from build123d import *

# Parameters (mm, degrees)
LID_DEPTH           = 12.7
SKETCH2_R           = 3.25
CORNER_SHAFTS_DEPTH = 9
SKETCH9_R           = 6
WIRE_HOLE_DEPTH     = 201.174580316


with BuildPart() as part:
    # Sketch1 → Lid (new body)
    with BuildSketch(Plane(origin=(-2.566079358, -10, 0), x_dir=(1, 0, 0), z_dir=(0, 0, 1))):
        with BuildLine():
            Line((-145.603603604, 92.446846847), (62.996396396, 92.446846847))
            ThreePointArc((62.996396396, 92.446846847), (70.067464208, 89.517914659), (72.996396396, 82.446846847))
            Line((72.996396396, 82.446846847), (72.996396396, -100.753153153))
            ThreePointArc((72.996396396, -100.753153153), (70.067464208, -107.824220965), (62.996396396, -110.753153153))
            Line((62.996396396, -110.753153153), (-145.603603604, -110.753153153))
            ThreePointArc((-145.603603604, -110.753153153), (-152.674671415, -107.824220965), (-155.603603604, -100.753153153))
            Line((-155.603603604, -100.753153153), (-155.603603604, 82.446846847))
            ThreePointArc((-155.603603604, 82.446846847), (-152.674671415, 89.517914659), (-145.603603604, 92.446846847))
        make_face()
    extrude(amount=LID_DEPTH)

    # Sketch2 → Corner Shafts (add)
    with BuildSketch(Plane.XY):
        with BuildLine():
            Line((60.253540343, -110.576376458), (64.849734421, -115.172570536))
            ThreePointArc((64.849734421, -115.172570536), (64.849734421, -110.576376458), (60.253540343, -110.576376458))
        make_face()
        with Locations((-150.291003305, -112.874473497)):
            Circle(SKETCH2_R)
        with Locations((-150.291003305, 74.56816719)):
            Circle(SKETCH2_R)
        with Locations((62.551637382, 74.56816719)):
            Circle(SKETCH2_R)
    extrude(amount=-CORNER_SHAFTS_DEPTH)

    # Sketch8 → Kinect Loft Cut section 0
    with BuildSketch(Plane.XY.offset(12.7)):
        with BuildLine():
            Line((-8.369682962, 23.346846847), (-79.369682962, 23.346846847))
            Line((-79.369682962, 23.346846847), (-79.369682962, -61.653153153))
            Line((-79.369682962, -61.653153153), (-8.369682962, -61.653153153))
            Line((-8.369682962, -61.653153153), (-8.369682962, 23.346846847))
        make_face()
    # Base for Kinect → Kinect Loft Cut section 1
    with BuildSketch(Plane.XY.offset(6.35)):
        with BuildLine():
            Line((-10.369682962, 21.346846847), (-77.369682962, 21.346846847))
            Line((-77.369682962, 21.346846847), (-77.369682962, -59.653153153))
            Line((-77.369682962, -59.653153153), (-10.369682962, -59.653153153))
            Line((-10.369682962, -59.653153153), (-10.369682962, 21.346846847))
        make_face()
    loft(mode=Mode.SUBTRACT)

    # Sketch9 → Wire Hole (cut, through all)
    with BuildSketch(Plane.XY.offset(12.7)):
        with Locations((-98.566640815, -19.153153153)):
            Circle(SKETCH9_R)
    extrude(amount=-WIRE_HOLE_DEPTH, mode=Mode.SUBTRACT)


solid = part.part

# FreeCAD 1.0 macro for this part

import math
import FreeCAD as App
import Part
import Sketcher

V = App.Vector
Q = App.Units.Quantity

doc = App.newDocument("Part")
body = doc.addObject("PartDesign::Body", "Body")

# Sketch on XY plane
sketch1 = body.newObject("Sketcher::SketchObject", "Sketch")
sketch1.AttachmentSupport = (doc.getObject("XY_Plane"), [""])
sketch1.MapMode = "FlatFace"
sketch1.addGeometry(Part.LineSegment(V(60, 82, 0), V(-148, 82, 0)), False)
sketch1.addGeometry(Part.ArcOfCircle(Part.Circle(V(-148, 72, 0), V(0, 0, 1), 10), math.radians(90), math.radians(180)), False)
sketch1.addGeometry(Part.LineSegment(V(-158, 72, 0), V(-158, -111, 0)), False)
sketch1.addGeometry(Part.ArcOfCircle(Part.Circle(V(-148, -111, 0), V(0, 0, 1), 10), math.radians(-180), math.radians(-90)), False)
sketch1.addGeometry(Part.LineSegment(V(-148, -121, 0), V(60, -121, 0)), False)
sketch1.addGeometry(Part.ArcOfCircle(Part.Circle(V(60, -111, 0), V(0, 0, 1), 10), math.radians(-90), math.radians(0)), False)
sketch1.addGeometry(Part.LineSegment(V(70, -111, 0), V(70, 72, 0)), False)
sketch1.addGeometry(Part.ArcOfCircle(Part.Circle(V(60, 72, 0), V(0, 0, 1), 10), math.radians(0), math.radians(90)), False)
sketch1.addConstraint(Sketcher.Constraint("Tangent", 0, 2, 1, 1))
sketch1.addConstraint(Sketcher.Constraint("Tangent", 1, 2, 2, 1))
sketch1.addConstraint(Sketcher.Constraint("Tangent", 2, 2, 3, 1))
sketch1.addConstraint(Sketcher.Constraint("Tangent", 3, 2, 4, 1))
sketch1.addConstraint(Sketcher.Constraint("Tangent", 4, 2, 5, 1))
sketch1.addConstraint(Sketcher.Constraint("Tangent", 5, 2, 6, 1))
sketch1.addConstraint(Sketcher.Constraint("Tangent", 6, 2, 7, 1))
sketch1.addConstraint(Sketcher.Constraint("Tangent", 7, 2, 0, 1))
sketch1.addConstraint(Sketcher.Constraint("Horizontal", 0))
sketch1.addConstraint(Sketcher.Constraint("Vertical", 2))
sketch1.addConstraint(Sketcher.Constraint("Horizontal", 4))
sketch1.addConstraint(Sketcher.Constraint("Vertical", 6))
sketch1.addConstraint(Sketcher.Constraint("Equal", 1, 3))
sketch1.addConstraint(Sketcher.Constraint("Equal", 3, 5))
sketch1.addConstraint(Sketcher.Constraint("Equal", 5, 7))
sketch1.addConstraint(Sketcher.Constraint("Radius", 1, Q("10 mm")))
sketch1.addConstraint(Sketcher.Constraint("DistanceX", 0, 2, 0, 1, Q("208.6 mm")))
sketch1.addConstraint(Sketcher.Constraint("DistanceY", 2, 2, 2, 1, Q("183.2 mm")))
sketch1.addConstraint(Sketcher.Constraint("DistanceX", 1, 3, -1, 1, Q("148.169683 mm")))
sketch1.addConstraint(Sketcher.Constraint("DistanceY", -1, 1, 1, 3, Q("72.446847 mm")))
pad1 = body.newObject("PartDesign::Pad", "Pad")
pad1.Profile = sketch1
pad1.Length = 12.7

# Sketch on XY plane
sketch2 = body.newObject("Sketcher::SketchObject", "Sketch001")
sketch2.AttachmentSupport = (doc.getObject("XY_Plane"), [""])
sketch2.MapMode = "FlatFace"
sketch2.addGeometry(Part.LineSegment(V(60.3, -110.6, 0), V(64.8, -115.2, 0)), False)
sketch2.addGeometry(Part.ArcOfCircle(Part.Circle(V(62.6, -112.9, 0), V(0, 0, 1), 3.2), math.radians(-45), math.radians(135)), False)
sketch2.addGeometry(Part.Circle(V(-150.3, -112.9, 0), V(0, 0, 1), 3.2), False)
sketch2.addGeometry(Part.Circle(V(-150.3, 74.6, 0), V(0, 0, 1), 3.2), False)
sketch2.addGeometry(Part.Circle(V(62.6, 74.6, 0), V(0, 0, 1), 3.2), False)
sketch2.addConstraint(Sketcher.Constraint("Coincident", 0, 1, 1, 2))
sketch2.addConstraint(Sketcher.Constraint("Coincident", 1, 1, 0, 2))
sketch2.addConstraint(Sketcher.Constraint("Equal", 1, 2))
sketch2.addConstraint(Sketcher.Constraint("Equal", 2, 3))
sketch2.addConstraint(Sketcher.Constraint("Equal", 3, 4))
sketch2.addConstraint(Sketcher.Constraint("Horizontal", 1, 3, 2, 3))
sketch2.addConstraint(Sketcher.Constraint("Horizontal", 3, 3, 4, 3))
sketch2.addConstraint(Sketcher.Constraint("Vertical", 2, 3, 3, 3))
sketch2.addConstraint(Sketcher.Constraint("Vertical", 1, 3, 4, 3))
sketch2.addConstraint(Sketcher.Constraint("Diameter", 2, Q("6.5 mm")))
sketch2.addConstraint(Sketcher.Constraint("Angle", 0, Q("-45 deg")))
sketch2.addConstraint(Sketcher.Constraint("DistanceX", -1, 1, 0, 1, Q("60.25354 mm")))
sketch2.addConstraint(Sketcher.Constraint("DistanceY", 1, 1, -1, 1, Q("115.172571 mm")))
sketch2.addConstraint(Sketcher.Constraint("DistanceX", 2, 3, 1, 3, Q("212.842641 mm")))
sketch2.addConstraint(Sketcher.Constraint("DistanceY", 2, 3, 3, 3, Q("187.442641 mm")))
sketch2.addConstraint(Sketcher.Constraint("DistanceX", -1, 1, 1, 3, Q("62.551637 mm")))
pad2 = body.newObject("PartDesign::Pad", "Pad001")
pad2.Profile = sketch2
pad2.Length = 9
pad2.Reversed = True

# Sketch on XY plane
sketch3 = body.newObject("Sketcher::SketchObject", "Sketch002")
sketch3.AttachmentSupport = (doc.getObject("XY_Plane"), [""])
sketch3.MapMode = "FlatFace"
sketch3.AttachmentOffset = App.Placement(V(0, 0, 12.7), App.Rotation())
sketch3.addGeometry(Part.LineSegment(V(-8, 23, 0), V(-79, 23, 0)), False)
sketch3.addGeometry(Part.LineSegment(V(-79, 23, 0), V(-79, -62, 0)), False)
sketch3.addGeometry(Part.LineSegment(V(-79, -62, 0), V(-8, -62, 0)), False)
sketch3.addGeometry(Part.LineSegment(V(-8, -62, 0), V(-8, 23, 0)), False)
sketch3.addConstraint(Sketcher.Constraint("Coincident", 0, 2, 1, 1))
sketch3.addConstraint(Sketcher.Constraint("Coincident", 1, 2, 2, 1))
sketch3.addConstraint(Sketcher.Constraint("Coincident", 2, 2, 3, 1))
sketch3.addConstraint(Sketcher.Constraint("Coincident", 3, 2, 0, 1))
sketch3.addConstraint(Sketcher.Constraint("Horizontal", 0))
sketch3.addConstraint(Sketcher.Constraint("Vertical", 1))
sketch3.addConstraint(Sketcher.Constraint("Horizontal", 2))
sketch3.addConstraint(Sketcher.Constraint("Vertical", 3))
sketch3.addConstraint(Sketcher.Constraint("DistanceX", 0, 2, 0, 1, Q("71 mm")))
sketch3.addConstraint(Sketcher.Constraint("DistanceY", 1, 2, 1, 1, Q("85 mm")))
sketch3.addConstraint(Sketcher.Constraint("DistanceX", 0, 2, -1, 1, Q("79.369683 mm")))
sketch3.addConstraint(Sketcher.Constraint("DistanceY", -1, 1, 0, 2, Q("23.346847 mm")))

# Sketch on XY plane
sketch4 = body.newObject("Sketcher::SketchObject", "Sketch003")
sketch4.AttachmentSupport = (doc.getObject("XY_Plane"), [""])
sketch4.MapMode = "FlatFace"
sketch4.AttachmentOffset = App.Placement(V(0, 0, 6.35), App.Rotation())
sketch4.addGeometry(Part.LineSegment(V(-10, 21, 0), V(-77, 21, 0)), False)
sketch4.addGeometry(Part.LineSegment(V(-77, 21, 0), V(-77, -60, 0)), False)
sketch4.addGeometry(Part.LineSegment(V(-77, -60, 0), V(-10, -60, 0)), False)
sketch4.addGeometry(Part.LineSegment(V(-10, -60, 0), V(-10, 21, 0)), False)
sketch4.addConstraint(Sketcher.Constraint("Coincident", 0, 2, 1, 1))
sketch4.addConstraint(Sketcher.Constraint("Coincident", 1, 2, 2, 1))
sketch4.addConstraint(Sketcher.Constraint("Coincident", 2, 2, 3, 1))
sketch4.addConstraint(Sketcher.Constraint("Coincident", 3, 2, 0, 1))
sketch4.addConstraint(Sketcher.Constraint("Horizontal", 0))
sketch4.addConstraint(Sketcher.Constraint("Vertical", 1))
sketch4.addConstraint(Sketcher.Constraint("Horizontal", 2))
sketch4.addConstraint(Sketcher.Constraint("Vertical", 3))
sketch4.addConstraint(Sketcher.Constraint("DistanceX", 0, 2, 0, 1, Q("67 mm")))
sketch4.addConstraint(Sketcher.Constraint("DistanceY", 1, 2, 1, 1, Q("81 mm")))
sketch4.addConstraint(Sketcher.Constraint("DistanceX", 0, 2, -1, 1, Q("77.369683 mm")))
sketch4.addConstraint(Sketcher.Constraint("DistanceY", -1, 1, 0, 2, Q("21.346847 mm")))

subtractiveloft = body.newObject("PartDesign::SubtractiveLoft", "SubtractiveLoft")
subtractiveloft.Profile = sketch3
subtractiveloft.Sections = [sketch4]

# Sketch on XY plane
sketch5 = body.newObject("Sketcher::SketchObject", "Sketch004")
sketch5.AttachmentSupport = (doc.getObject("XY_Plane"), [""])
sketch5.MapMode = "FlatFace"
sketch5.AttachmentOffset = App.Placement(V(0, 0, 12.7), App.Rotation())
sketch5.addGeometry(Part.Circle(V(-99, -19, 0), V(0, 0, 1), 6), False)
sketch5.addConstraint(Sketcher.Constraint("Diameter", 0, Q("12 mm")))
sketch5.addConstraint(Sketcher.Constraint("DistanceX", 0, 3, -1, 1, Q("98.566641 mm")))
sketch5.addConstraint(Sketcher.Constraint("DistanceY", 0, 3, -1, 1, Q("19.153153 mm")))
pocket1 = body.newObject("PartDesign::Pocket", "Pocket")
pocket1.Profile = sketch5
pocket1.Type = "ThroughAll"

doc.recompute()
